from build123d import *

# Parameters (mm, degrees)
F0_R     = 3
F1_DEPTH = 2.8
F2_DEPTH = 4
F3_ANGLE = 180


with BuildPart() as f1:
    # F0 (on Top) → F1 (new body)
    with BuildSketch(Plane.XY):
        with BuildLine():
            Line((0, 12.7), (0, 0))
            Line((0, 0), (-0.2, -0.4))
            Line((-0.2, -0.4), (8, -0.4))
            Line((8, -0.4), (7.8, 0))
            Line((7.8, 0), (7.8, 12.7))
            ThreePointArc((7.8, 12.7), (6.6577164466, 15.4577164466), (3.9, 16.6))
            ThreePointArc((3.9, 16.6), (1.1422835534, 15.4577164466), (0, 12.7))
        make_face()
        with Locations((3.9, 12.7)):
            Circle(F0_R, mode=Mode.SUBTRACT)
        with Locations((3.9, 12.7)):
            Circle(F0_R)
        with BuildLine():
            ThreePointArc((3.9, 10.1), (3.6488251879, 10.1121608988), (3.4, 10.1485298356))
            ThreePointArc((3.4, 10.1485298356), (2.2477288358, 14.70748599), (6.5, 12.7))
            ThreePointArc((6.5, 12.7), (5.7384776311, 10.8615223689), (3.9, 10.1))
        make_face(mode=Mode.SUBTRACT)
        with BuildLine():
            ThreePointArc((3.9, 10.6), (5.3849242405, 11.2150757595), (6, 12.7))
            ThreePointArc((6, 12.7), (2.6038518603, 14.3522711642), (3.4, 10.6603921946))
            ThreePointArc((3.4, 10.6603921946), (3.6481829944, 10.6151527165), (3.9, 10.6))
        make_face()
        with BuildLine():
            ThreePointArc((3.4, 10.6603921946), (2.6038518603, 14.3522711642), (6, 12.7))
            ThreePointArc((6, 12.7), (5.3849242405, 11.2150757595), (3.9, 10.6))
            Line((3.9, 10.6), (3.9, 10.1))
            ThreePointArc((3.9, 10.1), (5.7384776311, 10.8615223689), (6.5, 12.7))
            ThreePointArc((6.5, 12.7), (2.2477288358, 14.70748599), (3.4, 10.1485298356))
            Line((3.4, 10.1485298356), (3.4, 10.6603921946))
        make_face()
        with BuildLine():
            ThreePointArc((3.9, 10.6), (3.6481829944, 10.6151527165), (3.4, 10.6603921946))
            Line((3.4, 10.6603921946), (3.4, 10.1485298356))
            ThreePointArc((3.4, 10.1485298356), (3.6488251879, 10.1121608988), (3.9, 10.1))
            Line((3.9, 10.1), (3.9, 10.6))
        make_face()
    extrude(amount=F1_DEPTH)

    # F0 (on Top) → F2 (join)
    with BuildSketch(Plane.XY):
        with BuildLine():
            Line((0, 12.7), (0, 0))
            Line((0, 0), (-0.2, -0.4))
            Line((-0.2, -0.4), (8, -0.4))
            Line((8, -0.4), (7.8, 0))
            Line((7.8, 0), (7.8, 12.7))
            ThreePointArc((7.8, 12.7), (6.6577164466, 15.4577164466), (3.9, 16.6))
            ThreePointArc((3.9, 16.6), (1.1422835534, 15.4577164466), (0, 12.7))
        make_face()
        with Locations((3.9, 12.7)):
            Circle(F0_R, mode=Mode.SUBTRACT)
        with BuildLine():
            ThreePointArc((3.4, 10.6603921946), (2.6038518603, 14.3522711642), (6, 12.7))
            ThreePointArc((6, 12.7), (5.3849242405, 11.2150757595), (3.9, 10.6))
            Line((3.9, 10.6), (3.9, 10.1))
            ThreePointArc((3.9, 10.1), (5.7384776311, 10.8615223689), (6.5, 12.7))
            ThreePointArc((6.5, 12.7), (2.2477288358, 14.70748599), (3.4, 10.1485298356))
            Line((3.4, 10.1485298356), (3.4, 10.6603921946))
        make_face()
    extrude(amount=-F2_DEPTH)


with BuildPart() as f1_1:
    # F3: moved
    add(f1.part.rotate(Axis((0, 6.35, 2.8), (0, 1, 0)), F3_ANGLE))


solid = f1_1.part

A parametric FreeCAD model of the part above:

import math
import FreeCAD as App
import Part
import Sketcher
from FreeCAD import Vector
Q = App.Units.Quantity

doc = App.newDocument("Part")
body = doc.addObject("PartDesign::Body", "Body")

sketch1 = body.newObject("Sketcher::SketchObject", "Sketch")
sketch1.AttachmentSupport = (doc.getObject("XY_Plane"), [""])
sketch1.MapMode = "FlatFace"
sketch1.addGeometry([
    Part.LineSegment(Vector(0, 12.7, 0), Vector(0, 0, 0)),
    Part.LineSegment(Vector(0, 0, 0), Vector(-0.2, -0.4, 0)),
    Part.LineSegment(Vector(-0.2, -0.4, 0), Vector(8, -0.4, 0)),
    Part.LineSegment(Vector(8, -0.4, 0), Vector(7.8, 0, 0)),
    Part.LineSegment(Vector(7.8, 0, 0), Vector(7.8, 12.7, 0)),
    Part.ArcOfCircle(Part.Circle(Vector(3.9, 12.7, 0), Vector(0, 0, 1), 3.9), math.radians(0), math.radians(90)),
    Part.ArcOfCircle(Part.Circle(Vector(3.9, 12.7, 0), Vector(0, 0, 1), 3.9), math.radians(90), math.radians(180)),
], False)
sketch1.addConstraint([
    Sketcher.Constraint("Coincident", 0, 2, 1, 1),
    Sketcher.Constraint("Coincident", 1, 2, 2, 1),
    Sketcher.Constraint("Coincident", 2, 2, 3, 1),
    Sketcher.Constraint("Coincident", 3, 2, 4, 1),
    Sketcher.Constraint("Tangent", 4, 2, 5, 1),
    Sketcher.Constraint("Tangent", 5, 2, 6, 1),
    Sketcher.Constraint("Tangent", 6, 2, 0, 1),
    Sketcher.Constraint("Vertical", 0),
    Sketcher.Constraint("Horizontal", 2),
    Sketcher.Constraint("Vertical", 4),
    Sketcher.Constraint("Coincident", 0, 2, -1, 1),
    Sketcher.Constraint("Equal", 5, 6),
    Sketcher.Constraint("PointOnObject", 3, 2, -1),
    Sketcher.Constraint("Vertical", 6, 3, 5, 2),
    Sketcher.Constraint("Equal", 1, 3),
    Sketcher.Constraint("Radius", 5, Q("3.9 mm")),
    Sketcher.Constraint("DistanceX", 2, 1, 2, 2, Q("8.2 mm")),
    Sketcher.Constraint("DistanceY", 0, 2, 0, 1, Q("12.7 mm")),
    Sketcher.Constraint("DistanceY", 1, 2, -1, 1, Q("0.4 mm")),
])
pad1 = body.newObject("PartDesign::Pad", "Pad")
pad1.Profile = sketch1
pad1.Length = 2.8

sketch2 = body.newObject("Sketcher::SketchObject", "Sketch001")
sketch2.AttachmentSupport = (doc.getObject("XY_Plane"), [""])
sketch2.MapMode = "FlatFace"
sketch2.addGeometry([
    Part.LineSegment(Vector(0, 12.7, 0), Vector(0, 0, 0)),
    Part.LineSegment(Vector(0, 0, 0), Vector(-0.2, -0.4, 0)),
    Part.LineSegment(Vector(-0.2, -0.4, 0), Vector(8, -0.4, 0)),
    Part.LineSegment(Vector(8, -0.4, 0), Vector(7.8, 0, 0)),
    Part.LineSegment(Vector(7.8, 0, 0), Vector(7.8, 12.7, 0)),
    Part.ArcOfCircle(Part.Circle(Vector(3.9, 12.7, 0), Vector(0, 0, 1), 3.9), math.radians(0), math.radians(90)),
    Part.ArcOfCircle(Part.Circle(Vector(3.9, 12.7, 0), Vector(0, 0, 1), 3.9), math.radians(90), math.radians(180)),
    Part.Circle(Vector(3.9, 12.7, 0), Vector(0, 0, 1), 3),
    Part.ArcOfCircle(Part.Circle(Vector(3.9, 12.7, 0), Vector(0, 0, 1), 2.1), math.radians(0), math.radians(256)),
    Part.ArcOfCircle(Part.Circle(Vector(3.9, 12.7, 0), Vector(0, 0, 1), 2.1), math.radians(-90), math.radians(0)),
    Part.LineSegment(Vector(3.9, 10.6, 0), Vector(3.9, 10.1, 0)),
    Part.ArcOfCircle(Part.Circle(Vector(3.9, 12.7, 0), Vector(0, 0, 1), 2.6), math.radians(-90), math.radians(0)),
    Part.ArcOfCircle(Part.Circle(Vector(3.9, 12.7, 0), Vector(0, 0, 1), 2.6), math.radians(0), math.radians(259)),
    Part.LineSegment(Vector(3.4, 10.15, 0), Vector(3.4, 10.66, 0)),
], False)
sketch2.addConstraint([
    Sketcher.Constraint("Coincident", 0, 2, 1, 1),
    Sketcher.Constraint("Coincident", 1, 2, 2, 1),
    Sketcher.Constraint("Coincident", 2, 2, 3, 1),
    Sketcher.Constraint("Coincident", 3, 2, 4, 1),
    Sketcher.Constraint("Tangent", 4, 2, 5, 1),
    Sketcher.Constraint("Tangent", 5, 2, 6, 1),
    Sketcher.Constraint("Tangent", 6, 2, 0, 1),
    Sketcher.Constraint("Tangent", 8, 1, 9, 2),
    Sketcher.Constraint("Coincident", 9, 1, 10, 1),
    Sketcher.Constraint("Coincident", 10, 2, 11, 1),
    Sketcher.Constraint("Tangent", 11, 2, 12, 1),
    Sketcher.Constraint("Coincident", 12, 2, 13, 1),
    Sketcher.Constraint("Coincident", 13, 2, 8, 2),
    Sketcher.Constraint("Vertical", 0),
    Sketcher.Constraint("Horizontal", 2),
    Sketcher.Constraint("Vertical", 4),
    Sketcher.Constraint("Vertical", 10),
    Sketcher.Constraint("Vertical", 13),
    Sketcher.Constraint("Coincident", 0, 2, -1, 1),
    Sketcher.Constraint("Coincident", 7, 3, 5, 3),
    Sketcher.Constraint("Coincident", 8, 3, 5, 3),
    Sketcher.Constraint("Coincident", 11, 3, 5, 3),
    Sketcher.Constraint("Equal", 5, 6),
    Sketcher.Constraint("Equal", 8, 9),
    Sketcher.Constraint("Equal", 11, 12),
    Sketcher.Constraint("PointOnObject", 3, 2, -1),
    Sketcher.Constraint("Horizontal", 6, 2, 8, 1),
    Sketcher.Constraint("Horizontal", 8, 1, 11, 2),
    Sketcher.Constraint("Vertical", 12, 3, 5, 2),
    Sketcher.Constraint("Vertical", 5, 2, 9, 1),
    Sketcher.Constraint("Equal", 1, 3),
    Sketcher.Constraint("Diameter", 7, Q("6 mm")),
    Sketcher.Constraint("Radius", 5, Q("3.9 mm")),
    Sketcher.Constraint("Radius", 8, Q("2.1 mm")),
    Sketcher.Constraint("Radius", 11, Q("2.6 mm")),
    Sketcher.Constraint("DistanceX", 2, 1, 2, 2, Q("8.2 mm")),
    Sketcher.Constraint("DistanceY", 0, 2, 0, 1, Q("12.7 mm")),
    Sketcher.Constraint("DistanceY", 1, 2, -1, 1, Q("0.4 mm")),
    Sketcher.Constraint("DistanceX", -1, 1, 12, 2, Q("3.4 mm")),
])
pad2 = body.newObject("PartDesign::Pad", "Pad001")
pad2.Profile = sketch2
pad2.Length = 4
pad2.Reversed = True
body2 = doc.addObject("PartDesign::Body", "Body001")
doc.recompute()

body.Placement = App.Placement(Vector(0, 0, 5.6), App.Rotation(Vector(0, 1, 0), 180))
boolean = body2.newObject("PartDesign::Boolean", "Boolean")
boolean.Type = "Fuse"
boolean.addObjects([body])

doc.recompute()
